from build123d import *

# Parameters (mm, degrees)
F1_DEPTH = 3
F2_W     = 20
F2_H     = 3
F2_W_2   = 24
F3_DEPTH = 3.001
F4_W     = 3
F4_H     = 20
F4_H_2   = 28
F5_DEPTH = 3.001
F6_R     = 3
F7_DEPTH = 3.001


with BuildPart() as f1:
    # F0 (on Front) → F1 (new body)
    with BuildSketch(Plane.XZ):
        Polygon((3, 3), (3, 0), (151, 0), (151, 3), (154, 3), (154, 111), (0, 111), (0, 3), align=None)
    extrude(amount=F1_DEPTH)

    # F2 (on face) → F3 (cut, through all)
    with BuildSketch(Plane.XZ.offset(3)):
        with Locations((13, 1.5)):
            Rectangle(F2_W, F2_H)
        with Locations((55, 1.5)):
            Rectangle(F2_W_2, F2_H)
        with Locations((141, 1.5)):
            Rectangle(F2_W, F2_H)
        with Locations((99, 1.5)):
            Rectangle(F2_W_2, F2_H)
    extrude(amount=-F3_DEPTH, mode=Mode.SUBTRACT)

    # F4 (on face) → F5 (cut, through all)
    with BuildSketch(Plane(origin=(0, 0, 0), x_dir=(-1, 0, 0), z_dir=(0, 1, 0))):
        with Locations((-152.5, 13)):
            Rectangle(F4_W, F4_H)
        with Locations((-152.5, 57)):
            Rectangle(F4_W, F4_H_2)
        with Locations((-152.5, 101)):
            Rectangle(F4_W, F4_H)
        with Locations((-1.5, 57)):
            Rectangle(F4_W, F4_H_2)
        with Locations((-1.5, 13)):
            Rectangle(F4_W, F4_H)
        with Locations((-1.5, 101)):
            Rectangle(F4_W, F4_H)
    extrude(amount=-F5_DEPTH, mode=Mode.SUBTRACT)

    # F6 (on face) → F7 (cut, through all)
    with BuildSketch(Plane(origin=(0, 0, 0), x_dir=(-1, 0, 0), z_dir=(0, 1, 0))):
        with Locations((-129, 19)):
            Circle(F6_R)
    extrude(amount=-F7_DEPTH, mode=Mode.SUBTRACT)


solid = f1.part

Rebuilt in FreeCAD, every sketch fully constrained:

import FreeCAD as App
import Part
import Sketcher
from FreeCAD import Vector


def add_polygon(sketch, points):
    """Adds a closed chain of lines whose ends are joined by coincident constraints."""
    first, n = sketch.GeometryCount, len(points)
    for a, b in zip(points, points[1:] + points[:1]):
        sketch.addGeometry(Part.LineSegment(App.Vector(*a, 0), App.Vector(*b, 0)), False)
    for i in range(n):
        sketch.addConstraint(Sketcher.Constraint("Coincident", first + i, 2, first + (i + 1) % n, 1))

doc = App.newDocument("Part")
body = doc.addObject("PartDesign::Body", "Body")

sketch1 = body.newObject("Sketcher::SketchObject", "Sketch")
sketch1.AttachmentSupport = (doc.getObject("XZ_Plane"), [""])
sketch1.MapMode = "FlatFace"
add_polygon(sketch1, [(3, 3), (3, 0), (151, 0), (151, 3), (154, 3), (154, 111), (0, 111), (0, 3)])
sketch1.addConstraint([
    Sketcher.Constraint("Vertical", 0),
    Sketcher.Constraint("Horizontal", 1),
    Sketcher.Constraint("Vertical", 2),
    Sketcher.Constraint("Horizontal", 3),
    Sketcher.Constraint("Vertical", 4),
    Sketcher.Constraint("Horizontal", 5),
    Sketcher.Constraint("Vertical", 6),
    Sketcher.Constraint("Horizontal", 7),
    Sketcher.Constraint("PointOnObject", 0, 2, -1),
    Sketcher.Constraint("PointOnObject", 5, 2, -2),
    Sketcher.Constraint("Horizontal", 3, 2, 6, 2),
    Sketcher.Constraint("Equal", 3, 7),
    Sketcher.Constraint("Equal", 7, 0),
    Sketcher.Constraint("DistanceX", 1, 1, 1, 2, 148.0),
    Sketcher.Constraint("DistanceX", 3, 1, 3, 2, 3.0),
    Sketcher.Constraint("DistanceY", 4, 1, 4, 2, 108.0),
])
pad1 = body.newObject("PartDesign::Pad", "Pad")
pad1.Profile = sketch1
pad1.Length = 3

sketch2 = body.newObject("Sketcher::SketchObject", "Sketch001")
sketch2.AttachmentSupport = (doc.getObject("XZ_Plane"), [""])
sketch2.MapMode = "FlatFace"
sketch2.AttachmentOffset = App.Placement(Vector(0, 0, 3), App.Rotation())
add_polygon(sketch2, [(3, 3), (3, 0), (23, 0), (23, 3)])
add_polygon(sketch2, [(43, 3), (43, 0), (67, 0), (67, 3)])
add_polygon(sketch2, [(131, 3), (131, 0), (151, 0), (151, 3)])
add_polygon(sketch2, [(87, 3), (87, 0), (111, 0), (111, 3)])
sketch2.addConstraint([
    Sketcher.Constraint("Vertical", 0),
    Sketcher.Constraint("Horizontal", 1),
    Sketcher.Constraint("Vertical", 2),
    Sketcher.Constraint("Horizontal", 3),
    Sketcher.Constraint("Vertical", 4),
    Sketcher.Constraint("Horizontal", 5),
    Sketcher.Constraint("Vertical", 6),
    Sketcher.Constraint("Horizontal", 7),
    Sketcher.Constraint("Vertical", 8),
    Sketcher.Constraint("Horizontal", 9),
    Sketcher.Constraint("Vertical", 10),
    Sketcher.Constraint("Horizontal", 11),
    Sketcher.Constraint("Vertical", 12),
    Sketcher.Constraint("Horizontal", 13),
    Sketcher.Constraint("Vertical", 14),
    Sketcher.Constraint("Horizontal", 15),
    Sketcher.Constraint("PointOnObject", 0, 2, -1),
    Sketcher.Constraint("PointOnObject", 4, 2, -1),
    Sketcher.Constraint("PointOnObject", 8, 2, -1),
    Sketcher.Constraint("PointOnObject", 12, 2, -1),
    Sketcher.Constraint("Horizontal", 3, 2, 6, 2),
    Sketcher.Constraint("Horizontal", 7, 2, 10, 2),
    Sketcher.Constraint("Horizontal", 11, 2, 14, 2),
    Sketcher.Constraint("Equal", 3, 9),
    Sketcher.Constraint("Equal", 7, 13),
    Sketcher.Constraint("DistanceX", 1, 1, 1, 2, 20.0),
    Sketcher.Constraint("DistanceX", 5, 1, 5, 2, 24.0),
    Sketcher.Constraint("DistanceY", 0, 2, 0, 1, 3.0),
    Sketcher.Constraint("DistanceX", -1, 1, 0, 2, 3.0),
    Sketcher.Constraint("DistanceX", -1, 1, 4, 2, 43.0),
    Sketcher.Constraint("DistanceX", -1, 1, 8, 2, 131.0),
    Sketcher.Constraint("DistanceX", -1, 1, 12, 2, 87.0),
])
pocket1 = body.newObject("PartDesign::Pocket", "Pocket")
pocket1.Profile = sketch2
pocket1.Type = "ThroughAll"

sketch3 = body.newObject("Sketcher::SketchObject", "Sketch002")
sketch3.AttachmentSupport = (doc.getObject("XZ_Plane"), [""])
sketch3.MapMode = "FlatFace"
add_polygon(sketch3, [(154, 23), (154, 3), (151, 3), (151, 23)])
add_polygon(sketch3, [(154, 71), (154, 43), (151, 43), (151, 71)])
add_polygon(sketch3, [(154, 111), (154, 91), (151, 91), (151, 111)])
add_polygon(sketch3, [(3, 71), (3, 43), (0, 43), (0, 71)])
add_polygon(sketch3, [(3, 23), (3, 3), (0, 3), (0, 23)])
add_polygon(sketch3, [(3, 111), (3, 91), (0, 91), (0, 111)])
sketch3.addConstraint([
    Sketcher.Constraint("Vertical", 0),
    Sketcher.Constraint("Horizontal", 1),
    Sketcher.Constraint("Vertical", 2),
    Sketcher.Constraint("Horizontal", 3),
    Sketcher.Constraint("Vertical", 4),
    Sketcher.Constraint("Horizontal", 5),
    Sketcher.Constraint("Vertical", 6),
    Sketcher.Constraint("Horizontal", 7),
    Sketcher.Constraint("Vertical", 8),
    Sketcher.Constraint("Horizontal", 9),
    Sketcher.Constraint("Vertical", 10),
    Sketcher.Constraint("Horizontal", 11),
    Sketcher.Constraint("Vertical", 12),
    Sketcher.Constraint("Horizontal", 13),
    Sketcher.Constraint("Vertical", 14),
    Sketcher.Constraint("Horizontal", 15),
    Sketcher.Constraint("Vertical", 16),
    Sketcher.Constraint("Horizontal", 17),
    Sketcher.Constraint("Vertical", 18),
    Sketcher.Constraint("Horizontal", 19),
    Sketcher.Constraint("Vertical", 20),
    Sketcher.Constraint("Horizontal", 21),
    Sketcher.Constraint("Vertical", 22),
    Sketcher.Constraint("Horizontal", 23),
    Sketcher.Constraint("PointOnObject", 13, 2, -2),
    Sketcher.Constraint("PointOnObject", 17, 2, -2),
    Sketcher.Constraint("PointOnObject", 21, 2, -2),
    Sketcher.Constraint("Horizontal", 5, 2, 12, 2),
    Sketcher.Constraint("Horizontal", 7, 2, 14, 2),
    Sketcher.Constraint("Horizontal", 1, 2, 16, 2),
    Sketcher.Constraint("Horizontal", 3, 2, 18, 2),
    Sketcher.Constraint("Horizontal", 9, 2, 20, 2),
    Sketcher.Constraint("Horizontal", 11, 2, 22, 2),
    Sketcher.Constraint("Vertical", 3, 2, 4, 2),
    Sketcher.Constraint("Vertical", 2, 2, 5, 2),
    Sketcher.Constraint("Vertical", 7, 2, 8, 2),
    Sketcher.Constraint("Vertical", 6, 2, 9, 2),
    Sketcher.Constraint("Vertical", 15, 2, 16, 2),
    Sketcher.Constraint("Vertical", 19, 2, 20, 2),
    Sketcher.Constraint("Equal", 11, 13),
    Sketcher.Constraint("Equal", 2, 8),
    Sketcher.Constraint("DistanceX", 1, 2, 1, 1, 3.0),
    Sketcher.Constraint("DistanceY", 0, 2, 0, 1, 20.0),
    Sketcher.Constraint("DistanceY", 4, 2, 4, 1, 28.0),
    Sketcher.Constraint("DistanceX", -1, 1, 0, 2, 154.0),
    Sketcher.Constraint("DistanceY", -1, 1, 0, 2, 3.0),
    Sketcher.Constraint("DistanceY", -1, 1, 4, 2, 43.0),
    Sketcher.Constraint("DistanceY", -1, 1, 8, 2, 91.0),
])
pocket2 = body.newObject("PartDesign::Pocket", "Pocket001")
pocket2.Profile = sketch3
pocket2.Type = "ThroughAll"
pocket2.Reversed = True

sketch4 = body.newObject("Sketcher::SketchObject", "Sketch003")
sketch4.AttachmentSupport = (doc.getObject("XZ_Plane"), [""])
sketch4.MapMode = "FlatFace"
sketch4.addGeometry(Part.Circle(Vector(129, 19, 0), Vector(0, 0, 1), 3), False)
sketch4.addConstraint([
    Sketcher.Constraint("Diameter", 0, 6.0),
    Sketcher.Constraint("DistanceX", -1, 1, 0, 3, 129.0),
    Sketcher.Constraint("DistanceY", -1, 1, 0, 3, 19.0),
])
pocket3 = body.newObject("PartDesign::Pocket", "Pocket002")
pocket3.Profile = sketch4
pocket3.Type = "ThroughAll"
pocket3.Reversed = True

doc.recompute()
